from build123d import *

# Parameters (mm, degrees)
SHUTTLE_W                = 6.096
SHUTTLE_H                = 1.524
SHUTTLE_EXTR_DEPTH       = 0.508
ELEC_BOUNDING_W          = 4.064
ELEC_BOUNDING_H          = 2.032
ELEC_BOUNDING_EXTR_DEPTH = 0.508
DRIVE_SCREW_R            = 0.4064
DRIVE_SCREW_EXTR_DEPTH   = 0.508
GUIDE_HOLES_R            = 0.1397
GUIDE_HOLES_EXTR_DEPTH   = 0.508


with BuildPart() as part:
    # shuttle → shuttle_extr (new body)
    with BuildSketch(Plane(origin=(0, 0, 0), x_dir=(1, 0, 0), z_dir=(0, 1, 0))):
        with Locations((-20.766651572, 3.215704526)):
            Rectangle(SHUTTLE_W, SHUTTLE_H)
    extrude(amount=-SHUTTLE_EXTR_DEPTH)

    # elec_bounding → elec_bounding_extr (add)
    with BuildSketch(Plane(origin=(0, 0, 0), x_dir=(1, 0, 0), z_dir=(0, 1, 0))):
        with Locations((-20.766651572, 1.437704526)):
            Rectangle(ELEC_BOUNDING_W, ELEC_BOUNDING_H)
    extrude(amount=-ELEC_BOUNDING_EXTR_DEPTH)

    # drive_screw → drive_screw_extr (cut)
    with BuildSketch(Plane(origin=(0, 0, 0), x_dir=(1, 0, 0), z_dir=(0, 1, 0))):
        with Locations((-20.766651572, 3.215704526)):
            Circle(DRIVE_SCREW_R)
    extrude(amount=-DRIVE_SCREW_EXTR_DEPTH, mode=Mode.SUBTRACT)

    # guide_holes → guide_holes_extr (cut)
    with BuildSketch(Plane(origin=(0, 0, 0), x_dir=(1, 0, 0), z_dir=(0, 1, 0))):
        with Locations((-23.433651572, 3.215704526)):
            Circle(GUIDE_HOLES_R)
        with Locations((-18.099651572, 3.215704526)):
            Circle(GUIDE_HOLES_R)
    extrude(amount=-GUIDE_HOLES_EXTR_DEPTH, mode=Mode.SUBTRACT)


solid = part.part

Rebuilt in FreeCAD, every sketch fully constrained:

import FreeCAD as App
import Part
import Sketcher

V = App.Vector
Q = App.Units.Quantity

doc = App.newDocument("Part")
body = doc.addObject("PartDesign::Body", "Body")

sketch1 = body.newObject("Sketcher::SketchObject", "Sketch")
sketch1.AttachmentSupport = (doc.getObject("XZ_Plane"), [""])
sketch1.MapMode = "FlatFace"
sketch1.addGeometry([
    Part.LineSegment(V(-23.8, -4, 0), V(-23.8, -2.5, 0)),
    Part.LineSegment(V(-23.8, -2.5, 0), V(-17.7, -2.5, 0)),
    Part.LineSegment(V(-17.7, -2.5, 0), V(-17.7, -4, 0)),
    Part.LineSegment(V(-17.7, -4, 0), V(-23.8, -4, 0)),
], False)
sketch1.addConstraint([
    Sketcher.Constraint("Coincident", 0, 2, 1, 1),
    Sketcher.Constraint("Coincident", 1, 2, 2, 1),
    Sketcher.Constraint("Coincident", 2, 2, 3, 1),
    Sketcher.Constraint("Coincident", 3, 2, 0, 1),
    Sketcher.Constraint("Vertical", 0),
    Sketcher.Constraint("Horizontal", 1),
    Sketcher.Constraint("Vertical", 2),
    Sketcher.Constraint("Horizontal", 3),
    Sketcher.Constraint("DistanceX", 1, 1, 1, 2, Q("0.24 in")),
    Sketcher.Constraint("DistanceY", 0, 1, 0, 2, Q("0.06 in")),
    Sketcher.Constraint("DistanceX", 0, 2, -1, 1, 23.814652),
    Sketcher.Constraint("DistanceY", 0, 2, -1, 1, 2.453705),
])
pad1 = body.newObject("PartDesign::Pad", "Pad")
pad1.Profile = sketch1
pad1.Length = Q("0.02 in")

sketch2 = body.newObject("Sketcher::SketchObject", "Sketch001")
sketch2.AttachmentSupport = (doc.getObject("XZ_Plane"), [""])
sketch2.MapMode = "FlatFace"
sketch2.addGeometry([
    Part.LineSegment(V(-22.8, -2.5, 0), V(-22.8, -0.4, 0)),
    Part.LineSegment(V(-22.8, -0.4, 0), V(-18.7, -0.4, 0)),
    Part.LineSegment(V(-18.7, -0.4, 0), V(-18.7, -2.5, 0)),
    Part.LineSegment(V(-18.7, -2.5, 0), V(-22.8, -2.5, 0)),
], False)
sketch2.addConstraint([
    Sketcher.Constraint("Coincident", 0, 2, 1, 1),
    Sketcher.Constraint("Coincident", 1, 2, 2, 1),
    Sketcher.Constraint("Coincident", 2, 2, 3, 1),
    Sketcher.Constraint("Coincident", 3, 2, 0, 1),
    Sketcher.Constraint("Vertical", 0),
    Sketcher.Constraint("Horizontal", 1),
    Sketcher.Constraint("Vertical", 2),
    Sketcher.Constraint("Horizontal", 3),
    Sketcher.Constraint("DistanceX", 1, 1, 1, 2, Q("0.16 in")),
    Sketcher.Constraint("DistanceY", 0, 1, 0, 2, Q("0.08 in")),
    Sketcher.Constraint("DistanceX", 0, 2, -1, 1, 22.798652),
    Sketcher.Constraint("DistanceY", 0, 2, -1, 1, 0.421705),
])
pad2 = body.newObject("PartDesign::Pad", "Pad001")
pad2.Profile = sketch2
pad2.Length = Q("0.02 in")

sketch3 = body.newObject("Sketcher::SketchObject", "Sketch002")
sketch3.AttachmentSupport = (doc.getObject("XZ_Plane"), [""])
sketch3.MapMode = "FlatFace"
sketch3.addGeometry(Part.Circle(V(-20.77, -3.22, 0), V(0, 0, 1), 0.41), False)
sketch3.addConstraint([
    Sketcher.Constraint("Diameter", 0, Q("0.032 in")),
    Sketcher.Constraint("DistanceX", 0, 3, -1, 1, 20.766652),
    Sketcher.Constraint("DistanceY", 0, 3, -1, 1, 3.215705),
])
pocket1 = body.newObject("PartDesign::Pocket", "Pocket")
pocket1.Profile = sketch3
pocket1.Length = Q("0.02 in")
pocket1.Reversed = True

sketch4 = body.newObject("Sketcher::SketchObject", "Sketch003")
sketch4.AttachmentSupport = (doc.getObject("XZ_Plane"), [""])
sketch4.MapMode = "FlatFace"
sketch4.addGeometry([
    Part.Circle(V(-23.43, -3.22, 0), V(0, 0, 1), 0.14),
    Part.Circle(V(-18.1, -3.22, 0), V(0, 0, 1), 0.14),
], False)
sketch4.addConstraint([
    Sketcher.Constraint("Equal", 0, 1),
    Sketcher.Constraint("Horizontal", 0, 3, 1, 3),
    Sketcher.Constraint("Diameter", 0, Q("0.011 in")),
    Sketcher.Constraint("DistanceX", 0, 3, 1, 3, Q("0.21 in")),
    Sketcher.Constraint("DistanceX", 0, 3, -1, 1, 23.433652),
    Sketcher.Constraint("DistanceY", 0, 3, -1, 1, 3.215705),
])
pocket2 = body.newObject("PartDesign::Pocket", "Pocket001")
pocket2.Profile = sketch4
pocket2.Length = Q("0.02 in")
pocket2.Reversed = True

doc.recompute()
